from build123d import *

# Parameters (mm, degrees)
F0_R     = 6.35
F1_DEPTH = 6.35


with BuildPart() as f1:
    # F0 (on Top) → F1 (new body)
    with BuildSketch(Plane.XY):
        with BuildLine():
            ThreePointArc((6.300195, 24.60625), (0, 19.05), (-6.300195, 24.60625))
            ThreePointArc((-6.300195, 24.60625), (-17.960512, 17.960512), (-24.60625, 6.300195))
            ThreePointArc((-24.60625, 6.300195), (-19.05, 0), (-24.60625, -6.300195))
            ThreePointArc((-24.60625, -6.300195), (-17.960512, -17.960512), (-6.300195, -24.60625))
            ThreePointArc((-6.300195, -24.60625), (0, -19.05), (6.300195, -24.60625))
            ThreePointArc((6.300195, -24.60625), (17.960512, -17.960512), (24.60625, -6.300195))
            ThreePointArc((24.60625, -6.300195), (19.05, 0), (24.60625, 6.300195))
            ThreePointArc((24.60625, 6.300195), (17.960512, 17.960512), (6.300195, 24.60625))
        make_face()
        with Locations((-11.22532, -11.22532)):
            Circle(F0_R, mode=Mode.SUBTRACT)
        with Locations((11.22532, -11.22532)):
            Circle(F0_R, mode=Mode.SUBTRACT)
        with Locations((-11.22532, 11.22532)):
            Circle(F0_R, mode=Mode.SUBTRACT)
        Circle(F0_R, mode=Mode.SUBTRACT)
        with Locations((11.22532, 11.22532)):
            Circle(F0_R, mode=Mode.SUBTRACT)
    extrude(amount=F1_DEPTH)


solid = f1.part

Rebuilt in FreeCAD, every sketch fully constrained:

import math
import FreeCAD as App
import Part
import Sketcher
Q = App.Units.Quantity

doc = App.newDocument("Part")
body = doc.addObject("PartDesign::Body", "Body")

# Sketch on XY plane
sketch1 = body.newObject("Sketcher::SketchObject", "Sketch")
sketch1.AttachmentSupport = (doc.getObject("XY_Plane"), [""])
sketch1.MapMode = "FlatFace"
sketch1.addGeometry([
    Part.ArcOfCircle(Part.Circle(App.Vector(0, 25.4, 0), App.Vector(0, 0, 1), 6.35), math.radians(-172.819247), math.radians(-7.180753)),  # 0
    Part.ArcOfCircle(Part.Circle(App.Vector(0.000001, -0.000001, 0), App.Vector(0, 0, 1), 25.400002), math.radians(104.361513), math.radians(165.638487)),  # 1
    Part.ArcOfCircle(Part.Circle(App.Vector(-25.4, 0, 0), App.Vector(0, 0, 1), 6.35), math.radians(-82.819247), math.radians(82.819247)),  # 2
    Part.ArcOfCircle(Part.Circle(App.Vector(0.000001, 0.000001, 0), App.Vector(0, 0, 1), 25.400002), math.radians(-165.638487), math.radians(-104.361513)),  # 3
    Part.ArcOfCircle(Part.Circle(App.Vector(0, -25.4, 0), App.Vector(0, 0, 1), 6.35), math.radians(7.180753), math.radians(172.819247)),  # 4
    Part.ArcOfCircle(Part.Circle(App.Vector(-0.000001, 0.000001, 0), App.Vector(0, 0, 1), 25.400002), math.radians(-75.638487), math.radians(-14.361513)),  # 5
    Part.ArcOfCircle(Part.Circle(App.Vector(25.4, 0, 0), App.Vector(0, 0, 1), 6.35), math.radians(97.180753), math.radians(262.819247)),  # 6
    Part.ArcOfCircle(Part.Circle(App.Vector(-0.000001, -0.000001, 0), App.Vector(0, 0, 1), 25.400002), math.radians(14.361513), math.radians(75.638487)),  # 7
    Part.Circle(App.Vector(-11.22532, -11.22532, 0), App.Vector(0, 0, 1), 6.35),  # 8
    Part.Circle(App.Vector(11.22532, -11.22532, 0), App.Vector(0, 0, 1), 6.35),  # 9
    Part.Circle(App.Vector(-11.22532, 11.22532, 0), App.Vector(0, 0, 1), 6.35),  # 10
    Part.Circle(App.Vector(0, 0, 0), App.Vector(0, 0, 1), 6.35),  # 11
    Part.Circle(App.Vector(11.22532, 11.22532, 0), App.Vector(0, 0, 1), 6.35),  # 12
], False)
sketch1.addConstraint([
    Sketcher.Constraint("Coincident", 0, 1, 1, 1),
    Sketcher.Constraint("Coincident", 1, 2, 2, 2),
    Sketcher.Constraint("Coincident", 2, 1, 3, 1),
    Sketcher.Constraint("Coincident", 3, 2, 4, 2),
    Sketcher.Constraint("Coincident", 4, 1, 5, 1),
    Sketcher.Constraint("Coincident", 5, 2, 6, 2),
    Sketcher.Constraint("Coincident", 6, 1, 7, 1),
    Sketcher.Constraint("Coincident", 7, 2, 0, 2),
    Sketcher.Constraint("Coincident", 1, 3, -1, 1),
    Sketcher.Constraint("Coincident", 3, 3, -1, 1),
    Sketcher.Constraint("Coincident", 5, 3, -1, 1),
    Sketcher.Constraint("Coincident", 7, 3, -1, 1),
    Sketcher.Constraint("Coincident", 11, 3, -1, 1),
    Sketcher.Constraint("Equal", 0, 2),
    Sketcher.Constraint("Equal", 1, 3),
    Sketcher.Constraint("Equal", 2, 4),
    Sketcher.Constraint("Equal", 3, 5),
    Sketcher.Constraint("Equal", 4, 6),
    Sketcher.Constraint("Equal", 5, 7),
    Sketcher.Constraint("Equal", 6, 8),
    Sketcher.Constraint("Equal", 8, 9),
    Sketcher.Constraint("Equal", 9, 10),
    Sketcher.Constraint("Equal", 10, 11),
    Sketcher.Constraint("Equal", 11, 12),
    Sketcher.Constraint("Symmetric", 0, 3, 4, 3, -1, 1),
    Sketcher.Constraint("Symmetric", 2, 3, 6, 3, -1, 1),
    Sketcher.Constraint("Symmetric", 9, 3, 10, 3, -1, 1),
    Sketcher.Constraint("Symmetric", 8, 3, 12, 3, -1, 1),
    Sketcher.Constraint("Symmetric", 8, 3, 9, 3, -2),
    Sketcher.Constraint("PointOnObject", 0, 3, -2),
    Sketcher.Constraint("PointOnObject", 2, 3, -1),
    Sketcher.Constraint("Radius", 1, Q("1.0000001 in")),
    Sketcher.Constraint("Diameter", 8, Q("0.5 in")),
    Sketcher.Constraint("DistanceY", -1, 1, 0, 3, Q("1 in")),
    Sketcher.Constraint("DistanceX", 2, 3, -1, 1, Q("1 in")),
    Sketcher.Constraint("DistanceX", 8, 3, -1, 1, Q("11.22532 mm")),
    Sketcher.Constraint("DistanceY", 8, 3, -1, 1, Q("11.22532 mm")),
])
pad1 = body.newObject("PartDesign::Pad", "Pad")
pad1.Profile = sketch1
pad1.Length = Q("0.25 in")

doc.recompute()
